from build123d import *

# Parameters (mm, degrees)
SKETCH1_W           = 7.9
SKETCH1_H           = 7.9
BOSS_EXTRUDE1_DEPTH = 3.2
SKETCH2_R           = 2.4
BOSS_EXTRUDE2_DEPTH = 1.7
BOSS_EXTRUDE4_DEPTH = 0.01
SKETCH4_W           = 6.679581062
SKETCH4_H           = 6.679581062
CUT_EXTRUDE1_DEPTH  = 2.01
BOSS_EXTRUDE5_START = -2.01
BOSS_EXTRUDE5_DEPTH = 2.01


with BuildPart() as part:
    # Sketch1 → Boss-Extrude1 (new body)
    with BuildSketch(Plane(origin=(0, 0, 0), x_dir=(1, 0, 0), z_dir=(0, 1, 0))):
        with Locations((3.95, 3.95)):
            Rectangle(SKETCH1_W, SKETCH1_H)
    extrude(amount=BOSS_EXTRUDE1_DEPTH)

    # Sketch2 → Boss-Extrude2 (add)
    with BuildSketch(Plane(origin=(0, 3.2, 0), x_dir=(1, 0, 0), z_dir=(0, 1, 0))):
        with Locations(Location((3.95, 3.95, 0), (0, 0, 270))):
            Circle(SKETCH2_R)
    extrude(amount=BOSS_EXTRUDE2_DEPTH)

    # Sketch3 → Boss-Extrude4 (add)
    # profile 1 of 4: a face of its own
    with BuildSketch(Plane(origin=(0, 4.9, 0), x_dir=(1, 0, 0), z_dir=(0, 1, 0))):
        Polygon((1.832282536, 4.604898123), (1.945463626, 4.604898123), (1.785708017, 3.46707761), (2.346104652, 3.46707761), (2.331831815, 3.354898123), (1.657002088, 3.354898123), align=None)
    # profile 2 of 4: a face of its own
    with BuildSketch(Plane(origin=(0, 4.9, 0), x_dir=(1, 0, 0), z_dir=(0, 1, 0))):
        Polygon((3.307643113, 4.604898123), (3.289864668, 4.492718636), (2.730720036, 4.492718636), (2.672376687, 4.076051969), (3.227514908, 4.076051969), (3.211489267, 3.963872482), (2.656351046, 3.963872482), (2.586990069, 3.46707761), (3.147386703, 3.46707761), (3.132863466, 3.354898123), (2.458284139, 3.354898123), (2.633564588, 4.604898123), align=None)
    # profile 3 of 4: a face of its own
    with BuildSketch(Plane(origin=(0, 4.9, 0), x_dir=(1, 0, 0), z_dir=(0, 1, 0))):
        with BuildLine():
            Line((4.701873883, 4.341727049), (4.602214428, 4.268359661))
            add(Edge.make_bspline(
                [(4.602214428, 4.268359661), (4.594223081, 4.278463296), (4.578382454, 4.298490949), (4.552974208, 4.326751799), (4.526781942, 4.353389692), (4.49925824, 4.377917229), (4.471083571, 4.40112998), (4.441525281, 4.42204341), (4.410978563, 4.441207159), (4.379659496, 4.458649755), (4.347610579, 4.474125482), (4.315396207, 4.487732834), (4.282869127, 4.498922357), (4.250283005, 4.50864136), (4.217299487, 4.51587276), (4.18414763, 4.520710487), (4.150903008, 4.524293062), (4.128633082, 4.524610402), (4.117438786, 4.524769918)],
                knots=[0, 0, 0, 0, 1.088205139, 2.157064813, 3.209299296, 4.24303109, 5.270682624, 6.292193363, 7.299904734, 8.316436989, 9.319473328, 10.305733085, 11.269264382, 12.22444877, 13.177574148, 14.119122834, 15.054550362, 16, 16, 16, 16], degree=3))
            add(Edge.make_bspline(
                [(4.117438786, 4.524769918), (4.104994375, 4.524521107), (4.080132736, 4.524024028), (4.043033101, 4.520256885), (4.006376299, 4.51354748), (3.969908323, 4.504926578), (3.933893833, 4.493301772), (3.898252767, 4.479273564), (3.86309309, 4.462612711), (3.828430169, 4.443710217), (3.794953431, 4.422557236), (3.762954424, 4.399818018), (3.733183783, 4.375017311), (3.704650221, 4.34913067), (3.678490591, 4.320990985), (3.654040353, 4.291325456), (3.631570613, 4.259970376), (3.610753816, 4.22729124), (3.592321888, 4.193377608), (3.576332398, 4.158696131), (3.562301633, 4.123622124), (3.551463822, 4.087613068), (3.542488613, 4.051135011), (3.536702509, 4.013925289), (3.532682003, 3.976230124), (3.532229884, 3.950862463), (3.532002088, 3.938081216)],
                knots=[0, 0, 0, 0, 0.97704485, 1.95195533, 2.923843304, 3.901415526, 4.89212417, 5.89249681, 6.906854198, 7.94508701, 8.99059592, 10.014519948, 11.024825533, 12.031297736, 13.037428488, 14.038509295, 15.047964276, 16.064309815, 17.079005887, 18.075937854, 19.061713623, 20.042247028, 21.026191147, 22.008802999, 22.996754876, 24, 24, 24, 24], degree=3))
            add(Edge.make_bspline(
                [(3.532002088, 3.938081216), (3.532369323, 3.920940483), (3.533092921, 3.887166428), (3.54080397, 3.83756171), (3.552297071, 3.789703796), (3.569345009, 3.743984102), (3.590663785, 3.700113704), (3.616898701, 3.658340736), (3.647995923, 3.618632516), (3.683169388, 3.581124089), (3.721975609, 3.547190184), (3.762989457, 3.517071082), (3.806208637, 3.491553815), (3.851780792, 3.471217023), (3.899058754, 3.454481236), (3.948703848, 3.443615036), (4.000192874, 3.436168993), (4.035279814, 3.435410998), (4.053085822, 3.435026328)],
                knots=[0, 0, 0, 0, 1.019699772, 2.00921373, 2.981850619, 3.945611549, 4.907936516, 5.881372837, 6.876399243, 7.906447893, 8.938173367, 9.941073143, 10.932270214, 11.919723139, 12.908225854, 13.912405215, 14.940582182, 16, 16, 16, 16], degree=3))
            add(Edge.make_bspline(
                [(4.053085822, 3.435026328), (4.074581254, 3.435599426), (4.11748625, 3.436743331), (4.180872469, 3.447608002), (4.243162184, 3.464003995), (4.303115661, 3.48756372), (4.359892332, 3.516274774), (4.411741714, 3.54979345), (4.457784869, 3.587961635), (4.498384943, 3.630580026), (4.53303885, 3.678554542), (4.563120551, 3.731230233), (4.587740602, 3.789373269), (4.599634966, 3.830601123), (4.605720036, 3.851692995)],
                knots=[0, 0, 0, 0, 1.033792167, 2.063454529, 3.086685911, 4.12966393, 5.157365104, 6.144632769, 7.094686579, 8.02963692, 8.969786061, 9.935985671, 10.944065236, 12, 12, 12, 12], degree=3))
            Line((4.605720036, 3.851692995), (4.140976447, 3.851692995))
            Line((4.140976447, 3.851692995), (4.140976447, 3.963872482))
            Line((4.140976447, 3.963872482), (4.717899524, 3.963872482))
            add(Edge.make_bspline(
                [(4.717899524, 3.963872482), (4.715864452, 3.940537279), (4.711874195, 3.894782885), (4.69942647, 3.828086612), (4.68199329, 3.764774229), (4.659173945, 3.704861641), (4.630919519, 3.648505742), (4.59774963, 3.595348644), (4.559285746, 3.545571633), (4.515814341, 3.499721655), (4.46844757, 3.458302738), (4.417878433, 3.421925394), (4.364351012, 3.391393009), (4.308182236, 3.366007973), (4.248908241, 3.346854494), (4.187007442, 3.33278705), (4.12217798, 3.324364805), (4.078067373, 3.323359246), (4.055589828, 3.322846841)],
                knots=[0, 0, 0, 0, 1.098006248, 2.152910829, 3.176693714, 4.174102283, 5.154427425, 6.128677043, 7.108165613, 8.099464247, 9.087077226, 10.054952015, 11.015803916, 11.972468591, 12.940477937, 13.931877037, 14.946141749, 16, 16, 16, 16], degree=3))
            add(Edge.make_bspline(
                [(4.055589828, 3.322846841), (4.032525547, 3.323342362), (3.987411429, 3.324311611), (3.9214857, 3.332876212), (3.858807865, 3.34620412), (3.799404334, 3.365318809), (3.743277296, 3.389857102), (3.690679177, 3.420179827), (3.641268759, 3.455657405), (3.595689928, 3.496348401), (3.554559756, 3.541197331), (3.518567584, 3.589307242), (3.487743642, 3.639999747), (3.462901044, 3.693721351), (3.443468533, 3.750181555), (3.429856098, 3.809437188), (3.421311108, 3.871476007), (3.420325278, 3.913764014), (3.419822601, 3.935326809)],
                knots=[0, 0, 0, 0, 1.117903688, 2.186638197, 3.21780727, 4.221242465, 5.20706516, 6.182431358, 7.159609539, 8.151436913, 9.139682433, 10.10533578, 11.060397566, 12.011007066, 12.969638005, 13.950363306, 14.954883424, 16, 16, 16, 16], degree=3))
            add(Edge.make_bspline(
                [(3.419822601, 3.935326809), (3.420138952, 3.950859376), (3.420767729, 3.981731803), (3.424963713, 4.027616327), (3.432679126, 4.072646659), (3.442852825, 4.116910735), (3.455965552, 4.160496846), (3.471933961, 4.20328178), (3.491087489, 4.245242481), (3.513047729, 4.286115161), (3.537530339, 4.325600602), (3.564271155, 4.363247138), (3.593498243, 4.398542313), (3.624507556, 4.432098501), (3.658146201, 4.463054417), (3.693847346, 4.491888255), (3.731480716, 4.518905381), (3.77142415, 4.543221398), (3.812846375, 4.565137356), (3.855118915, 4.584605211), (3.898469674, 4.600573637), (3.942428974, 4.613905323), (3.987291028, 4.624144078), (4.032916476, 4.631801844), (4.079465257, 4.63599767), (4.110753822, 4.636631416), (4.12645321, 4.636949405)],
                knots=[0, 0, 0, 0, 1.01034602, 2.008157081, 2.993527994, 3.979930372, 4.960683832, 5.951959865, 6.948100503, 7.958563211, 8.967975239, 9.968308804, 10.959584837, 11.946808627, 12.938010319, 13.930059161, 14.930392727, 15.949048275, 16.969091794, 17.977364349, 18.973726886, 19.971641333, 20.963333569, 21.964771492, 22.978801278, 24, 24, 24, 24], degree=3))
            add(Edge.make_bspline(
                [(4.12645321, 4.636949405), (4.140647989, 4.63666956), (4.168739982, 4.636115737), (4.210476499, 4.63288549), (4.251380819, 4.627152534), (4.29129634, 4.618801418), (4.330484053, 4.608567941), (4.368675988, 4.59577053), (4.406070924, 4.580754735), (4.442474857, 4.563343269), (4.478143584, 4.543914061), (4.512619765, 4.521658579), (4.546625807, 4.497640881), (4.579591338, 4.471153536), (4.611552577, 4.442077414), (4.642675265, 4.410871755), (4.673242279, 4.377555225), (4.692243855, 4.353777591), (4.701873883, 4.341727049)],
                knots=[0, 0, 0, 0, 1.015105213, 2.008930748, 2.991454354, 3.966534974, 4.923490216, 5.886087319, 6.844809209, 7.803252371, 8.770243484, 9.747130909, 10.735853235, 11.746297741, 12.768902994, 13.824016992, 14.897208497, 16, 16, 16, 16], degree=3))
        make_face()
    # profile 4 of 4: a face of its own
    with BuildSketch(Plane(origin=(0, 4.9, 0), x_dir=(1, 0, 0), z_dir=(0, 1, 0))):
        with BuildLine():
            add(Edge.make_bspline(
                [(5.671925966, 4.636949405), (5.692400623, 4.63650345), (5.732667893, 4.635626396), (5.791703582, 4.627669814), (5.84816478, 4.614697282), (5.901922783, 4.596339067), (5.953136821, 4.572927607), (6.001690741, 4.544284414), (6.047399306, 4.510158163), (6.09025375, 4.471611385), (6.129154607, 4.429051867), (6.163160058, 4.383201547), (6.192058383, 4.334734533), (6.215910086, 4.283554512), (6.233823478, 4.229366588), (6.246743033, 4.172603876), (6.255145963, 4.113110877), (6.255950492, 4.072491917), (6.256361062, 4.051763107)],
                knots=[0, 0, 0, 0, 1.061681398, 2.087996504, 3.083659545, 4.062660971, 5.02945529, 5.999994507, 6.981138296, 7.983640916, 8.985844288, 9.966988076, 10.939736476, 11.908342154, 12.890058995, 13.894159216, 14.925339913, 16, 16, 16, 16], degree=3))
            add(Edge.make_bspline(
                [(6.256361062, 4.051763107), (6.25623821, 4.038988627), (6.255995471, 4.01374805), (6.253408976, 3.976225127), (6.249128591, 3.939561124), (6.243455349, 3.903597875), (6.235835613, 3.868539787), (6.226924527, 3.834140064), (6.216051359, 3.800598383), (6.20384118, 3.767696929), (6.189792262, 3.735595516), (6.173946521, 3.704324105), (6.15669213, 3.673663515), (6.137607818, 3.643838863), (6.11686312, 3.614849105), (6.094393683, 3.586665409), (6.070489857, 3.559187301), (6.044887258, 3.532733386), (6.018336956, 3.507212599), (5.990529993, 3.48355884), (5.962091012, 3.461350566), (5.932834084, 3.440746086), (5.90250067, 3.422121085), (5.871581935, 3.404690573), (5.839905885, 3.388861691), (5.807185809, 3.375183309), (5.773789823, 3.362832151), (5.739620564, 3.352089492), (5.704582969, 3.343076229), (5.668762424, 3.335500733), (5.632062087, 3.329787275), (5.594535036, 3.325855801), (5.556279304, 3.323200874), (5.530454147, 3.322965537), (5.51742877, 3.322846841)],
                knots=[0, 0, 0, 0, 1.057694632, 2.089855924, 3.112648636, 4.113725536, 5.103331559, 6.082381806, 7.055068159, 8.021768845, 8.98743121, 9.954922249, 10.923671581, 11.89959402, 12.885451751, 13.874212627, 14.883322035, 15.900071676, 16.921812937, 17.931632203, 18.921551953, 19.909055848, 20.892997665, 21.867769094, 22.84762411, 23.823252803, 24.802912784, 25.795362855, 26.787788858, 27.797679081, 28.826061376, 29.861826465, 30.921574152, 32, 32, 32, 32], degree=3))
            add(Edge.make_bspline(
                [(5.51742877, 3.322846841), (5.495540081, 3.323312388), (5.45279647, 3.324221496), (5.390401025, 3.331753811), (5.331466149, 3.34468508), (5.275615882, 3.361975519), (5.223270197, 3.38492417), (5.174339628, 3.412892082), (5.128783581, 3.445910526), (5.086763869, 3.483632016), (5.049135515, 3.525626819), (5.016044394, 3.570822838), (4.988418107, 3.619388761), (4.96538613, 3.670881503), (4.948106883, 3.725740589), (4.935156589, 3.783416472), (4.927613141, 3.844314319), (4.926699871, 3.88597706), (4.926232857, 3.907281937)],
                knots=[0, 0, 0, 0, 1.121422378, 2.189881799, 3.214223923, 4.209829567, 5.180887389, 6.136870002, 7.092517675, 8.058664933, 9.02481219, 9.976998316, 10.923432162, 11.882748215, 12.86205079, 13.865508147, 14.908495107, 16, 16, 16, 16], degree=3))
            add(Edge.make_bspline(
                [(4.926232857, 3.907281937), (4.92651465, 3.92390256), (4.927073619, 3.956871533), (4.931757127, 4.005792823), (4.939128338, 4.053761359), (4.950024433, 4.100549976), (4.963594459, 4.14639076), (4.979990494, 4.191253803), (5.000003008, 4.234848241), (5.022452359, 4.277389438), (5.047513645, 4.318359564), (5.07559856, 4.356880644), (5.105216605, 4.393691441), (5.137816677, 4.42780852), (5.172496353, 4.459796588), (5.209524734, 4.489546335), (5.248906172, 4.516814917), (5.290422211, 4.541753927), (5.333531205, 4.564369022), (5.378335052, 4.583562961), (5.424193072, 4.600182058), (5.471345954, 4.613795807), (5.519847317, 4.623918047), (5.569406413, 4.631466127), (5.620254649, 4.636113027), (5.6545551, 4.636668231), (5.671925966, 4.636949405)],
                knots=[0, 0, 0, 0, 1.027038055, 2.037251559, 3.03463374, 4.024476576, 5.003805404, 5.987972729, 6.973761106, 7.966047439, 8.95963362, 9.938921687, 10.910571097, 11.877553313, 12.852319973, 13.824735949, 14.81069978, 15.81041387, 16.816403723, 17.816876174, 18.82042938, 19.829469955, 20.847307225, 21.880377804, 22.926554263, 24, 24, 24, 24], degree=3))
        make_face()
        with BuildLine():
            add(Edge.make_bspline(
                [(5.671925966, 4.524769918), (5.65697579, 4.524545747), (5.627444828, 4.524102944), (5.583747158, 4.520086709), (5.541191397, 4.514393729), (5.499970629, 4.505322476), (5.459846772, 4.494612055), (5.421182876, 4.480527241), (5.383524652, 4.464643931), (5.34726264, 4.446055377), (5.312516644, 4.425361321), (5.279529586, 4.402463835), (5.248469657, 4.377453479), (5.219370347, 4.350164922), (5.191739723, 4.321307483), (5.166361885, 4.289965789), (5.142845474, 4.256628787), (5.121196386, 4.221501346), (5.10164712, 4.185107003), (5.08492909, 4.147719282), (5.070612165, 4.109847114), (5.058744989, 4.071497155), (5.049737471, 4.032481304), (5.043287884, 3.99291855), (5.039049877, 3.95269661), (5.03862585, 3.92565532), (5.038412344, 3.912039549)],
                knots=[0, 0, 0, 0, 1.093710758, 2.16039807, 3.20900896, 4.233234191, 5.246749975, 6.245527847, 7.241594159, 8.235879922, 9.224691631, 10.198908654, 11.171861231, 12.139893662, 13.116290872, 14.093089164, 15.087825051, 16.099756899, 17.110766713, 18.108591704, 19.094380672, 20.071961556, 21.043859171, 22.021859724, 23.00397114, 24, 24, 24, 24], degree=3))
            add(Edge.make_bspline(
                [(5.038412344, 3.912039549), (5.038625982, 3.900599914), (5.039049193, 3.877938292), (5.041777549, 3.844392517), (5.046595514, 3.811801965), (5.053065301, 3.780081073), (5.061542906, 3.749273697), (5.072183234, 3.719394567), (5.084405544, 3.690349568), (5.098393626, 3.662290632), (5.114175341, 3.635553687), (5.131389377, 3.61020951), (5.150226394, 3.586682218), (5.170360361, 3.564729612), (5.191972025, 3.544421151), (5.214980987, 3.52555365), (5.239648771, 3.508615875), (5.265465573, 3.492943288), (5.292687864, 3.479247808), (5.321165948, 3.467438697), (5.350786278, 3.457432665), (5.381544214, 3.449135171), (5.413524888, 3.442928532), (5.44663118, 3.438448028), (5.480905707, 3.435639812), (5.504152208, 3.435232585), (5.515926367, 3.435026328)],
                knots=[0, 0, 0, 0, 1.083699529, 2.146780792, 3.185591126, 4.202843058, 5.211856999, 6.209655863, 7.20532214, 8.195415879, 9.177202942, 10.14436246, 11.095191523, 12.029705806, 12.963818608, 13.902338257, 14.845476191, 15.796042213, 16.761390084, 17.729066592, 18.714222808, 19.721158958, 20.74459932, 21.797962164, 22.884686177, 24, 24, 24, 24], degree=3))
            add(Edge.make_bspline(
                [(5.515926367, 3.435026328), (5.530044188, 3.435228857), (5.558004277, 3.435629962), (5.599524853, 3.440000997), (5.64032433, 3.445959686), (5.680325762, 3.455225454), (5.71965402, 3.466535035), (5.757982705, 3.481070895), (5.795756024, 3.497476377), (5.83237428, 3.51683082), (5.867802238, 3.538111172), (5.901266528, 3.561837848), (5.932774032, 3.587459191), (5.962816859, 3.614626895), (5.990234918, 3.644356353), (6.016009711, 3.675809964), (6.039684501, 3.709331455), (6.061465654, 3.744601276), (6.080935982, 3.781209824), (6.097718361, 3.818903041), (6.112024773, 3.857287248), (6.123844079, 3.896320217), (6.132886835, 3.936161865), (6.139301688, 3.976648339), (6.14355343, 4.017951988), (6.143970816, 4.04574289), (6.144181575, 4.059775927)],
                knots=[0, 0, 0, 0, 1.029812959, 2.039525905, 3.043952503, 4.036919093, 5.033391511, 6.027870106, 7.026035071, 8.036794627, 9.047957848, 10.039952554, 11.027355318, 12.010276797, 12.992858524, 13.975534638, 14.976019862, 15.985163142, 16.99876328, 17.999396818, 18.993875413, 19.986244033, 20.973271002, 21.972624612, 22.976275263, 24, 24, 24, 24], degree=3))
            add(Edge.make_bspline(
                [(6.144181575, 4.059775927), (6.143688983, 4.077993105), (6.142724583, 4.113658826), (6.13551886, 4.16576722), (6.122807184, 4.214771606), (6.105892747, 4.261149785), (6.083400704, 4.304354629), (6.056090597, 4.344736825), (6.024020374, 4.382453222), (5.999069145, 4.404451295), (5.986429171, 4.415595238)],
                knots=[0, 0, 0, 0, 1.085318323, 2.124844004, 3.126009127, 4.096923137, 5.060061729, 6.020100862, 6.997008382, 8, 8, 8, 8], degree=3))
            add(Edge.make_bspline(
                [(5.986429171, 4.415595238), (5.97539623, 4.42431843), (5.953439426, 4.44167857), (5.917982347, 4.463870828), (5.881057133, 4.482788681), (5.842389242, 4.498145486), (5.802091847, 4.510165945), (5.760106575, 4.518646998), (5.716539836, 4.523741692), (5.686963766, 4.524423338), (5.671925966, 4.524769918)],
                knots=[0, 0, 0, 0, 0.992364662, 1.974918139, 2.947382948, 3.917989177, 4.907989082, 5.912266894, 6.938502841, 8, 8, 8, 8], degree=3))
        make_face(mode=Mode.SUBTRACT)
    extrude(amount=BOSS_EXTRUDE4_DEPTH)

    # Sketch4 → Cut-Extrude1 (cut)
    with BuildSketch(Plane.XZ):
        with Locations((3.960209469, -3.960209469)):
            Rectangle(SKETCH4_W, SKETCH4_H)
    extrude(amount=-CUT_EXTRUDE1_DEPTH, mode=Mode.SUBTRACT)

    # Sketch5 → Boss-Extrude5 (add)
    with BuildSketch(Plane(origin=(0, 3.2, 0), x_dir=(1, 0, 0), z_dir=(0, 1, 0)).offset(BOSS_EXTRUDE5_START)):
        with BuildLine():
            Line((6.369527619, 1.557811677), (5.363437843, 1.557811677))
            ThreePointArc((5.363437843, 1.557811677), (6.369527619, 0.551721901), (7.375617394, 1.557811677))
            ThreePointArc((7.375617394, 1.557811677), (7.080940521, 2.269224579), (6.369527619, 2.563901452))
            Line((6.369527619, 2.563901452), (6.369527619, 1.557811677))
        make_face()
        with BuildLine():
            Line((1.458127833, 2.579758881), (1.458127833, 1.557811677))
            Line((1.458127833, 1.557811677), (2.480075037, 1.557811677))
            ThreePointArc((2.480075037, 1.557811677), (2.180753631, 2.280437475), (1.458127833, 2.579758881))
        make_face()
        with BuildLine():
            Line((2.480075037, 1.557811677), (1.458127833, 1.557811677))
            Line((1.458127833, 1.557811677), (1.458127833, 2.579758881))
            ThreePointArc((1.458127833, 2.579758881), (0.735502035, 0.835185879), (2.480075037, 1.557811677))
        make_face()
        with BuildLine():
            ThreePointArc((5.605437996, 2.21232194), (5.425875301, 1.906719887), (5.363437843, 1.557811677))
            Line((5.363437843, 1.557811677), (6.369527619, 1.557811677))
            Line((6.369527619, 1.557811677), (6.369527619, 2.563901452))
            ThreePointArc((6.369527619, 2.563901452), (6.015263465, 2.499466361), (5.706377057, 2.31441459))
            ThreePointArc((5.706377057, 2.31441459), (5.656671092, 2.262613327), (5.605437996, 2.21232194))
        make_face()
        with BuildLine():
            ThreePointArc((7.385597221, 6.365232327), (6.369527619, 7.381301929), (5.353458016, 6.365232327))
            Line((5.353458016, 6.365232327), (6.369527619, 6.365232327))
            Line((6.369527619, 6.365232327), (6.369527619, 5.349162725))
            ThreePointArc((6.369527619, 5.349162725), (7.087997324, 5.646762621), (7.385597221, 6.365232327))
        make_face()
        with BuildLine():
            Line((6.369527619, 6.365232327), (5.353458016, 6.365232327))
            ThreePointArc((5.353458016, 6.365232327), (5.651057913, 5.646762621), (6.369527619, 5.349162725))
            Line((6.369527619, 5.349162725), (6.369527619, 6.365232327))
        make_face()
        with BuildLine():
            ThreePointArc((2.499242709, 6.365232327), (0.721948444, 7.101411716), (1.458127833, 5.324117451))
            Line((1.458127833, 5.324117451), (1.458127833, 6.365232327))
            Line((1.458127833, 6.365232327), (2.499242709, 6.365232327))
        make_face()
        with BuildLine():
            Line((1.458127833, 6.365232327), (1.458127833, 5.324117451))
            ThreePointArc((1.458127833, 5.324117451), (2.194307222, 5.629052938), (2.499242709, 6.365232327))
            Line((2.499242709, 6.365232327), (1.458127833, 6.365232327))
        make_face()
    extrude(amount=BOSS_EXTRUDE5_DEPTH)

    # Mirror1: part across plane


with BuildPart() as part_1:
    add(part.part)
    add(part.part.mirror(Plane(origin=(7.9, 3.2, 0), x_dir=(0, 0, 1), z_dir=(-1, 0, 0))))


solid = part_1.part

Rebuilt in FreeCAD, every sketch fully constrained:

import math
import FreeCAD as App
import Part
import Sketcher
from FreeCAD import Vector


def add_polygon(sketch, points):
    """Adds a closed chain of lines whose ends are joined by coincident constraints."""
    first, n = sketch.GeometryCount, len(points)
    for a, b in zip(points, points[1:] + points[:1]):
        sketch.addGeometry(Part.LineSegment(App.Vector(*a, 0), App.Vector(*b, 0)), False)
    for i in range(n):
        sketch.addConstraint(Sketcher.Constraint("Coincident", first + i, 2, first + (i + 1) % n, 1))

doc = App.newDocument("Part")
params = doc.addObject("Spreadsheet::Sheet", "Params")
for row, (alias, value) in enumerate([
    ("sketch1_width", "7.9 mm"),
    ("pad1_length", "3.2 mm"),
    ("sketch2_diameter", "4.8 mm"),
    ("pad2_length", "1.7 mm"),
    ("pad3_length", "0.01 mm"),
    ("pocket1_length", "2.01 mm"),
    ("sketch5_radius", "2.399999 mm"),
    ("pad4_length", "2.01 mm"),
], start=1):
    params.set(f"A{row}", alias)
    params.set(f"B{row}", "=" + value)
    params.setAlias(f"B{row}", alias)

body = doc.addObject("PartDesign::Body", "Body")

sketch1 = doc.addObject("Sketcher::SketchObject", "Sketch")
body.addObject(sketch1)
sketch1.AttachmentSupport = (doc.XZ_Plane, [""])
sketch1.MapMode = "FlatFace"
add_polygon(sketch1, [(0, -7.9), (0, 0), (7.9, 0), (7.9, -7.9)])
sketch1.addConstraint([
    Sketcher.Constraint("Vertical", 0),
    Sketcher.Constraint("Horizontal", 1),
    Sketcher.Constraint("Vertical", 2),
    Sketcher.Constraint("Horizontal", 3),
    Sketcher.Constraint("Coincident", 0, 2, -1, 1),
    Sketcher.Constraint("Equal", 3, 0),
    Sketcher.Constraint("DistanceX", 1, 1, 1, 2, 7.9),
])
sketch1.setExpression("Constraints[10]", "Params.sketch1_width")
pad1 = doc.addObject("PartDesign::Pad", "Pad")
body.addObject(pad1)
pad1.Profile = sketch1
pad1.setExpression("Length", "Params.pad1_length")
pad1.Reversed = True

sketch2 = doc.addObject("Sketcher::SketchObject", "Sketch001")
body.addObject(sketch2)
sketch2.AttachmentSupport = (doc.XZ_Plane, [""])
sketch2.MapMode = "FlatFace"
sketch2.AttachmentOffset = App.Placement(Vector(0, 0, -3.2), App.Rotation())
sketch2.addGeometry(Part.Circle(Vector(3.95, -3.95, 0), Vector(0, 0, 1), 2.4), False)
sketch2.addConstraint([
    Sketcher.Constraint("Diameter", 0, 4.8),
    Sketcher.Constraint("DistanceX", -1, 1, 0, 3, 3.95),
    Sketcher.Constraint("DistanceY", 0, 3, -1, 1, 3.95),
])
sketch2.setExpression("Constraints[0]", "Params.sketch2_diameter")
pad2 = doc.addObject("PartDesign::Pad", "Pad001")
body.addObject(pad2)
pad2.Profile = sketch2
pad2.setExpression("Length", "Params.pad2_length")
pad2.Reversed = True

sketch3 = doc.addObject("Sketcher::SketchObject", "Sketch002")
body.addObject(sketch3)
sketch3.AttachmentSupport = (doc.XZ_Plane, [""])
sketch3.MapMode = "FlatFace"
sketch3.AttachmentOffset = App.Placement(Vector(0, 0, -4.9), App.Rotation())
add_polygon(sketch3, [(1.945464, -4.604898), (1.832283, -4.604898), (1.657002, -3.354898), (2.331832, -3.354898), (2.346105, -3.467078), (1.785708, -3.467078)])
add_polygon(sketch3, [(3.289865, -4.492719), (3.307643, -4.604898), (2.633565, -4.604898), (2.458284, -3.354898), (3.132863, -3.354898), (3.147387, -3.467078), (2.58699, -3.467078), (2.656351, -3.963872), (3.211489, -3.963872), (3.227515, -4.076052), (2.672377, -4.076052), (2.73072, -4.492719)])
sketch3.addGeometry(Part.LineSegment(Vector(4.602214, -4.26836, 0), Vector(4.701874, -4.341727, 0)), False)
sketch3.addGeometry(Part.BSplineCurve([Vector(4.126453, -4.636949, 0), Vector(4.140648, -4.63667, 0), Vector(4.16874, -4.636116, 0), Vector(4.210476, -4.632885, 0), Vector(4.251381, -4.627153, 0), Vector(4.291296, -4.618801, 0), Vector(4.330484, -4.608568, 0), Vector(4.368676, -4.595771, 0), Vector(4.406071, -4.580755, 0), Vector(4.442475, -4.563343, 0), Vector(4.478144, -4.543914, 0), Vector(4.51262, -4.521659, 0), Vector(4.546626, -4.497641, 0), Vector(4.579591, -4.471154, 0), Vector(4.611553, -4.442077, 0), Vector(4.642675, -4.410872, 0), Vector(4.673242, -4.377555, 0), Vector(4.692244, -4.353778, 0), Vector(4.701874, -4.341727, 0)], [4, 1, 1, 1, 1, 1, 1, 1, 1, 1, 1, 1, 1, 1, 1, 1, 4], [0, 1.015105213, 2.008930748, 2.991454354, 3.966534974, 4.923490216, 5.886087319, 6.844809209, 7.803252371, 8.770243484, 9.747130909, 10.735853235, 11.746297741, 12.768902994, 13.824016992, 14.897208497, 16], False, 3, [1, 1, 1, 1, 1, 1, 1, 1, 1, 1, 1, 1, 1, 1, 1, 1, 1, 1, 1], False), False)
sketch3.addGeometry(Part.BSplineCurve([Vector(3.419823, -3.935327, 0), Vector(3.420139, -3.950859, 0), Vector(3.420768, -3.981732, 0), Vector(3.424964, -4.027616, 0), Vector(3.432679, -4.072647, 0), Vector(3.442853, -4.116911, 0), Vector(3.455966, -4.160497, 0), Vector(3.471934, -4.203282, 0), Vector(3.491087, -4.245242, 0), Vector(3.513048, -4.286115, 0), Vector(3.53753, -4.325601, 0), Vector(3.564271, -4.363247, 0), Vector(3.593498, -4.398542, 0), Vector(3.624508, -4.432099, 0), Vector(3.658146, -4.463054, 0), Vector(3.693847, -4.491888, 0), Vector(3.731481, -4.518905, 0), Vector(3.771424, -4.543221, 0), Vector(3.812846, -4.565137, 0), Vector(3.855119, -4.584605, 0), Vector(3.89847, -4.600574, 0), Vector(3.942429, -4.613905, 0), Vector(3.987291, -4.624144, 0), Vector(4.032916, -4.631802, 0), Vector(4.079465, -4.635998, 0), Vector(4.110754, -4.636631, 0), Vector(4.126453, -4.636949, 0)], [4, 1, 1, 1, 1, 1, 1, 1, 1, 1, 1, 1, 1, 1, 1, 1, 1, 1, 1, 1, 1, 1, 1, 1, 4], [0, 1.01034602, 2.008157081, 2.993527994, 3.979930372, 4.960683832, 5.951959865, 6.948100503, 7.958563211, 8.967975239, 9.968308804, 10.959584837, 11.946808627, 12.938010319, 13.930059161, 14.930392727, 15.949048275, 16.969091794, 17.977364349, 18.973726886, 19.971641333, 20.963333569, 21.964771492, 22.978801278, 24], False, 3, [1, 1, 1, 1, 1, 1, 1, 1, 1, 1, 1, 1, 1, 1, 1, 1, 1, 1, 1, 1, 1, 1, 1, 1, 1, 1, 1], False), False)
sketch3.addGeometry(Part.BSplineCurve([Vector(4.05559, -3.322847, 0), Vector(4.032526, -3.323342, 0), Vector(3.987411, -3.324312, 0), Vector(3.921486, -3.332876, 0), Vector(3.858808, -3.346204, 0), Vector(3.799404, -3.365319, 0), Vector(3.743277, -3.389857, 0), Vector(3.690679, -3.42018, 0), Vector(3.641269, -3.455657, 0), Vector(3.59569, -3.496348, 0), Vector(3.55456, -3.541197, 0), Vector(3.518568, -3.589307, 0), Vector(3.487744, -3.64, 0), Vector(3.462901, -3.693721, 0), Vector(3.443469, -3.750182, 0), Vector(3.429856, -3.809437, 0), Vector(3.421311, -3.871476, 0), Vector(3.420325, -3.913764, 0), Vector(3.419823, -3.935327, 0)], [4, 1, 1, 1, 1, 1, 1, 1, 1, 1, 1, 1, 1, 1, 1, 1, 4], [0, 1.117903688, 2.186638197, 3.21780727, 4.221242465, 5.20706516, 6.182431358, 7.159609539, 8.151436913, 9.139682433, 10.10533578, 11.060397566, 12.011007066, 12.969638005, 13.950363306, 14.954883424, 16], False, 3, [1, 1, 1, 1, 1, 1, 1, 1, 1, 1, 1, 1, 1, 1, 1, 1, 1, 1, 1], False), False)
sketch3.addGeometry(Part.BSplineCurve([Vector(4.7179, -3.963872, 0), Vector(4.715864, -3.940537, 0), Vector(4.711874, -3.894783, 0), Vector(4.699426, -3.828087, 0), Vector(4.681993, -3.764774, 0), Vector(4.659174, -3.704862, 0), Vector(4.63092, -3.648506, 0), Vector(4.59775, -3.595349, 0), Vector(4.559286, -3.545572, 0), Vector(4.515814, -3.499722, 0), Vector(4.468448, -3.458303, 0), Vector(4.417878, -3.421925, 0), Vector(4.364351, -3.391393, 0), Vector(4.308182, -3.366008, 0), Vector(4.248908, -3.346854, 0), Vector(4.187007, -3.332787, 0), Vector(4.122178, -3.324365, 0), Vector(4.078067, -3.323359, 0), Vector(4.05559, -3.322847, 0)], [4, 1, 1, 1, 1, 1, 1, 1, 1, 1, 1, 1, 1, 1, 1, 1, 4], [0, 1.098006248, 2.152910829, 3.176693714, 4.174102283, 5.154427425, 6.128677043, 7.108165613, 8.099464247, 9.087077226, 10.054952015, 11.015803916, 11.972468591, 12.940477937, 13.931877037, 14.946141749, 16], False, 3, [1, 1, 1, 1, 1, 1, 1, 1, 1, 1, 1, 1, 1, 1, 1, 1, 1, 1, 1], False), False)
sketch3.addGeometry(Part.LineSegment(Vector(4.7179, -3.963872, 0), Vector(4.140976, -3.963872, 0)), False)
sketch3.addGeometry(Part.LineSegment(Vector(4.140976, -3.963872, 0), Vector(4.140976, -3.851693, 0)), False)
sketch3.addGeometry(Part.LineSegment(Vector(4.140976, -3.851693, 0), Vector(4.60572, -3.851693, 0)), False)
sketch3.addGeometry(Part.BSplineCurve([Vector(4.053086, -3.435026, 0), Vector(4.074581, -3.435599, 0), Vector(4.117486, -3.436743, 0), Vector(4.180872, -3.447608, 0), Vector(4.243162, -3.464004, 0), Vector(4.303116, -3.487564, 0), Vector(4.359892, -3.516275, 0), Vector(4.411742, -3.549793, 0), Vector(4.457785, -3.587962, 0), Vector(4.498385, -3.63058, 0), Vector(4.533039, -3.678555, 0), Vector(4.563121, -3.73123, 0), Vector(4.587741, -3.789373, 0), Vector(4.599635, -3.830601, 0), Vector(4.60572, -3.851693, 0)], [4, 1, 1, 1, 1, 1, 1, 1, 1, 1, 1, 1, 4], [0, 1.033792167, 2.063454529, 3.086685911, 4.12966393, 5.157365104, 6.144632769, 7.094686579, 8.02963692, 8.969786061, 9.935985671, 10.944065236, 12], False, 3, [1, 1, 1, 1, 1, 1, 1, 1, 1, 1, 1, 1, 1, 1, 1], False), False)
sketch3.addGeometry(Part.BSplineCurve([Vector(3.532002, -3.938081, 0), Vector(3.532369, -3.92094, 0), Vector(3.533093, -3.887166, 0), Vector(3.540804, -3.837562, 0), Vector(3.552297, -3.789704, 0), Vector(3.569345, -3.743984, 0), Vector(3.590664, -3.700114, 0), Vector(3.616899, -3.658341, 0), Vector(3.647996, -3.618633, 0), Vector(3.683169, -3.581124, 0), Vector(3.721976, -3.54719, 0), Vector(3.762989, -3.517071, 0), Vector(3.806209, -3.491554, 0), Vector(3.851781, -3.471217, 0), Vector(3.899059, -3.454481, 0), Vector(3.948704, -3.443615, 0), Vector(4.000193, -3.436169, 0), Vector(4.03528, -3.435411, 0), Vector(4.053086, -3.435026, 0)], [4, 1, 1, 1, 1, 1, 1, 1, 1, 1, 1, 1, 1, 1, 1, 1, 4], [0, 1.019699772, 2.00921373, 2.981850619, 3.945611549, 4.907936516, 5.881372837, 6.876399243, 7.906447893, 8.938173367, 9.941073143, 10.932270214, 11.919723139, 12.908225854, 13.912405215, 14.940582182, 16], False, 3, [1, 1, 1, 1, 1, 1, 1, 1, 1, 1, 1, 1, 1, 1, 1, 1, 1, 1, 1], False), False)
sketch3.addGeometry(Part.BSplineCurve([Vector(4.117439, -4.52477, 0), Vector(4.104994, -4.524521, 0), Vector(4.080133, -4.524024, 0), Vector(4.043033, -4.520257, 0), Vector(4.006376, -4.513547, 0), Vector(3.969908, -4.504927, 0), Vector(3.933894, -4.493302, 0), Vector(3.898253, -4.479274, 0), Vector(3.863093, -4.462613, 0), Vector(3.82843, -4.44371, 0), Vector(3.794953, -4.422557, 0), Vector(3.762954, -4.399818, 0), Vector(3.733184, -4.375017, 0), Vector(3.70465, -4.349131, 0), Vector(3.678491, -4.320991, 0), Vector(3.65404, -4.291325, 0), Vector(3.631571, -4.25997, 0), Vector(3.610754, -4.227291, 0), Vector(3.592322, -4.193378, 0), Vector(3.576332, -4.158696, 0), Vector(3.562302, -4.123622, 0), Vector(3.551464, -4.087613, 0), Vector(3.542489, -4.051135, 0), Vector(3.536703, -4.013925, 0), Vector(3.532682, -3.97623, 0), Vector(3.53223, -3.950862, 0), Vector(3.532002, -3.938081, 0)], [4, 1, 1, 1, 1, 1, 1, 1, 1, 1, 1, 1, 1, 1, 1, 1, 1, 1, 1, 1, 1, 1, 1, 1, 4], [0, 0.97704485, 1.95195533, 2.923843304, 3.901415526, 4.89212417, 5.89249681, 6.906854198, 7.94508701, 8.99059592, 10.014519948, 11.024825533, 12.031297736, 13.037428488, 14.038509295, 15.047964276, 16.064309815, 17.079005887, 18.075937854, 19.061713623, 20.042247028, 21.026191147, 22.008802999, 22.996754876, 24], False, 3, [1, 1, 1, 1, 1, 1, 1, 1, 1, 1, 1, 1, 1, 1, 1, 1, 1, 1, 1, 1, 1, 1, 1, 1, 1, 1, 1], False), False)
sketch3.addGeometry(Part.BSplineCurve([Vector(4.602214, -4.26836, 0), Vector(4.594223, -4.278463, 0), Vector(4.578382, -4.298491, 0), Vector(4.552974, -4.326752, 0), Vector(4.526782, -4.35339, 0), Vector(4.499258, -4.377917, 0), Vector(4.471084, -4.40113, 0), Vector(4.441525, -4.422043, 0), Vector(4.410979, -4.441207, 0), Vector(4.379659, -4.45865, 0), Vector(4.347611, -4.474125, 0), Vector(4.315396, -4.487733, 0), Vector(4.282869, -4.498922, 0), Vector(4.250283, -4.508641, 0), Vector(4.217299, -4.515873, 0), Vector(4.184148, -4.52071, 0), Vector(4.150903, -4.524293, 0), Vector(4.128633, -4.52461, 0), Vector(4.117439, -4.52477, 0)], [4, 1, 1, 1, 1, 1, 1, 1, 1, 1, 1, 1, 1, 1, 1, 1, 4], [0, 1.088205139, 2.157064813, 3.209299296, 4.24303109, 5.270682624, 6.292193363, 7.299904734, 8.316436989, 9.319473328, 10.305733085, 11.269264382, 12.22444877, 13.177574148, 14.119122834, 15.054550362, 16], False, 3, [1, 1, 1, 1, 1, 1, 1, 1, 1, 1, 1, 1, 1, 1, 1, 1, 1, 1, 1], False), False)
sketch3.addGeometry(Part.BSplineCurve([Vector(5.671926, -4.636949, 0), Vector(5.692401, -4.636503, 0), Vector(5.732668, -4.635626, 0), Vector(5.791704, -4.62767, 0), Vector(5.848165, -4.614697, 0), Vector(5.901923, -4.596339, 0), Vector(5.953137, -4.572928, 0), Vector(6.001691, -4.544284, 0), Vector(6.047399, -4.510158, 0), Vector(6.090254, -4.471611, 0), Vector(6.129155, -4.429052, 0), Vector(6.16316, -4.383202, 0), Vector(6.192058, -4.334735, 0), Vector(6.21591, -4.283555, 0), Vector(6.233823, -4.229367, 0), Vector(6.246743, -4.172604, 0), Vector(6.255146, -4.113111, 0), Vector(6.25595, -4.072492, 0), Vector(6.256361, -4.051763, 0)], [4, 1, 1, 1, 1, 1, 1, 1, 1, 1, 1, 1, 1, 1, 1, 1, 4], [0, 1.061681398, 2.087996504, 3.083659545, 4.062660971, 5.02945529, 5.999994507, 6.981138296, 7.983640916, 8.985844288, 9.966988076, 10.939736476, 11.908342154, 12.890058995, 13.894159216, 14.925339913, 16], False, 3, [1, 1, 1, 1, 1, 1, 1, 1, 1, 1, 1, 1, 1, 1, 1, 1, 1, 1, 1], False), False)
sketch3.addGeometry(Part.BSplineCurve([Vector(4.926233, -3.907282, 0), Vector(4.926515, -3.923903, 0), Vector(4.927074, -3.956872, 0), Vector(4.931757, -4.005793, 0), Vector(4.939128, -4.053761, 0), Vector(4.950024, -4.10055, 0), Vector(4.963594, -4.146391, 0), Vector(4.97999, -4.191254, 0), Vector(5.000003, -4.234848, 0), Vector(5.022452, -4.277389, 0), Vector(5.047514, -4.31836, 0), Vector(5.075599, -4.356881, 0), Vector(5.105217, -4.393691, 0), Vector(5.137817, -4.427809, 0), Vector(5.172496, -4.459797, 0), Vector(5.209525, -4.489546, 0), Vector(5.248906, -4.516815, 0), Vector(5.290422, -4.541754, 0), Vector(5.333531, -4.564369, 0), Vector(5.378335, -4.583563, 0), Vector(5.424193, -4.600182, 0), Vector(5.471346, -4.613796, 0), Vector(5.519847, -4.623918, 0), Vector(5.569406, -4.631466, 0), Vector(5.620255, -4.636113, 0), Vector(5.654555, -4.636668, 0), Vector(5.671926, -4.636949, 0)], [4, 1, 1, 1, 1, 1, 1, 1, 1, 1, 1, 1, 1, 1, 1, 1, 1, 1, 1, 1, 1, 1, 1, 1, 4], [0, 1.027038055, 2.037251559, 3.03463374, 4.024476576, 5.003805404, 5.987972729, 6.973761106, 7.966047439, 8.95963362, 9.938921687, 10.910571097, 11.877553313, 12.852319973, 13.824735949, 14.81069978, 15.81041387, 16.816403723, 17.816876174, 18.82042938, 19.829469955, 20.847307225, 21.880377804, 22.926554263, 24], False, 3, [1, 1, 1, 1, 1, 1, 1, 1, 1, 1, 1, 1, 1, 1, 1, 1, 1, 1, 1, 1, 1, 1, 1, 1, 1, 1, 1], False), False)
sketch3.addGeometry(Part.BSplineCurve([Vector(5.517429, -3.322847, 0), Vector(5.49554, -3.323312, 0), Vector(5.452796, -3.324221, 0), Vector(5.390401, -3.331754, 0), Vector(5.331466, -3.344685, 0), Vector(5.275616, -3.361976, 0), Vector(5.22327, -3.384924, 0), Vector(5.17434, -3.412892, 0), Vector(5.128784, -3.445911, 0), Vector(5.086764, -3.483632, 0), Vector(5.049136, -3.525627, 0), Vector(5.016044, -3.570823, 0), Vector(4.988418, -3.619389, 0), Vector(4.965386, -3.670882, 0), Vector(4.948107, -3.725741, 0), Vector(4.935157, -3.783416, 0), Vector(4.927613, -3.844314, 0), Vector(4.9267, -3.885977, 0), Vector(4.926233, -3.907282, 0)], [4, 1, 1, 1, 1, 1, 1, 1, 1, 1, 1, 1, 1, 1, 1, 1, 4], [0, 1.121422378, 2.189881799, 3.214223923, 4.209829567, 5.180887389, 6.136870002, 7.092517675, 8.058664933, 9.02481219, 9.976998316, 10.923432162, 11.882748215, 12.86205079, 13.865508147, 14.908495107, 16], False, 3, [1, 1, 1, 1, 1, 1, 1, 1, 1, 1, 1, 1, 1, 1, 1, 1, 1, 1, 1], False), False)
sketch3.addGeometry(Part.BSplineCurve([Vector(6.256361, -4.051763, 0), Vector(6.256238, -4.038989, 0), Vector(6.255995, -4.013748, 0), Vector(6.253409, -3.976225, 0), Vector(6.249129, -3.939561, 0), Vector(6.243455, -3.903598, 0), Vector(6.235836, -3.86854, 0), Vector(6.226925, -3.83414, 0), Vector(6.216051, -3.800598, 0), Vector(6.203841, -3.767697, 0), Vector(6.189792, -3.735596, 0), Vector(6.173947, -3.704324, 0), Vector(6.156692, -3.673664, 0), Vector(6.137608, -3.643839, 0), Vector(6.116863, -3.614849, 0), Vector(6.094394, -3.586665, 0), Vector(6.07049, -3.559187, 0), Vector(6.044887, -3.532733, 0), Vector(6.018337, -3.507213, 0), Vector(5.99053, -3.483559, 0), Vector(5.962091, -3.461351, 0), Vector(5.932834, -3.440746, 0), Vector(5.902501, -3.422121, 0), Vector(5.871582, -3.404691, 0), Vector(5.839906, -3.388862, 0), Vector(5.807186, -3.375183, 0), Vector(5.77379, -3.362832, 0), Vector(5.739621, -3.352089, 0), Vector(5.704583, -3.343076, 0), Vector(5.668762, -3.335501, 0), Vector(5.632062, -3.329787, 0), Vector(5.594535, -3.325856, 0), Vector(5.556279, -3.323201, 0), Vector(5.530454, -3.322966, 0), Vector(5.517429, -3.322847, 0)], [4, 1, 1, 1, 1, 1, 1, 1, 1, 1, 1, 1, 1, 1, 1, 1, 1, 1, 1, 1, 1, 1, 1, 1, 1, 1, 1, 1, 1, 1, 1, 1, 4], [0, 1.057694632, 2.089855924, 3.112648636, 4.113725536, 5.103331559, 6.082381806, 7.055068159, 8.021768845, 8.98743121, 9.954922249, 10.923671581, 11.89959402, 12.885451751, 13.874212627, 14.883322035, 15.900071676, 16.921812937, 17.931632203, 18.921551953, 19.909055848, 20.892997665, 21.867769094, 22.84762411, 23.823252803, 24.802912784, 25.795362855, 26.787788858, 27.797679081, 28.826061376, 29.861826465, 30.921574152, 32], False, 3, [1, 1, 1, 1, 1, 1, 1, 1, 1, 1, 1, 1, 1, 1, 1, 1, 1, 1, 1, 1, 1, 1, 1, 1, 1, 1, 1, 1, 1, 1, 1, 1, 1, 1, 1], False), False)
sketch3.addGeometry(Part.BSplineCurve([Vector(5.986429, -4.415595, 0), Vector(5.975396, -4.424318, 0), Vector(5.953439, -4.441679, 0), Vector(5.917982, -4.463871, 0), Vector(5.881057, -4.482789, 0), Vector(5.842389, -4.498145, 0), Vector(5.802092, -4.510166, 0), Vector(5.760107, -4.518647, 0), Vector(5.71654, -4.523742, 0), Vector(5.686964, -4.524423, 0), Vector(5.671926, -4.52477, 0)], [4, 1, 1, 1, 1, 1, 1, 1, 4], [0, 0.992364662, 1.974918139, 2.947382948, 3.917989177, 4.907989082, 5.912266894, 6.938502841, 8], False, 3, [1, 1, 1, 1, 1, 1, 1, 1, 1, 1, 1], False), False)
sketch3.addGeometry(Part.BSplineCurve([Vector(6.144182, -4.059776, 0), Vector(6.143689, -4.077993, 0), Vector(6.142725, -4.113659, 0), Vector(6.135519, -4.165767, 0), Vector(6.122807, -4.214772, 0), Vector(6.105893, -4.26115, 0), Vector(6.083401, -4.304355, 0), Vector(6.056091, -4.344737, 0), Vector(6.02402, -4.382453, 0), Vector(5.999069, -4.404451, 0), Vector(5.986429, -4.415595, 0)], [4, 1, 1, 1, 1, 1, 1, 1, 4], [0, 1.085318323, 2.124844004, 3.126009127, 4.096923137, 5.060061729, 6.020100862, 6.997008382, 8], False, 3, [1, 1, 1, 1, 1, 1, 1, 1, 1, 1, 1], False), False)
sketch3.addGeometry(Part.BSplineCurve([Vector(5.515926, -3.435026, 0), Vector(5.530044, -3.435229, 0), Vector(5.558004, -3.43563, 0), Vector(5.599525, -3.440001, 0), Vector(5.640324, -3.44596, 0), Vector(5.680326, -3.455225, 0), Vector(5.719654, -3.466535, 0), Vector(5.757983, -3.481071, 0), Vector(5.795756, -3.497476, 0), Vector(5.832374, -3.516831, 0), Vector(5.867802, -3.538111, 0), Vector(5.901267, -3.561838, 0), Vector(5.932774, -3.587459, 0), Vector(5.962817, -3.614627, 0), Vector(5.990235, -3.644356, 0), Vector(6.01601, -3.67581, 0), Vector(6.039685, -3.709331, 0), Vector(6.061466, -3.744601, 0), Vector(6.080936, -3.78121, 0), Vector(6.097718, -3.818903, 0), Vector(6.112025, -3.857287, 0), Vector(6.123844, -3.89632, 0), Vector(6.132887, -3.936162, 0), Vector(6.139302, -3.976648, 0), Vector(6.143553, -4.017952, 0), Vector(6.143971, -4.045743, 0), Vector(6.144182, -4.059776, 0)], [4, 1, 1, 1, 1, 1, 1, 1, 1, 1, 1, 1, 1, 1, 1, 1, 1, 1, 1, 1, 1, 1, 1, 1, 4], [0, 1.029812959, 2.039525905, 3.043952503, 4.036919093, 5.033391511, 6.027870106, 7.026035071, 8.036794627, 9.047957848, 10.039952554, 11.027355318, 12.010276797, 12.992858524, 13.975534638, 14.976019862, 15.985163142, 16.99876328, 17.999396818, 18.993875413, 19.986244033, 20.973271002, 21.972624612, 22.976275263, 24], False, 3, [1, 1, 1, 1, 1, 1, 1, 1, 1, 1, 1, 1, 1, 1, 1, 1, 1, 1, 1, 1, 1, 1, 1, 1, 1, 1, 1], False), False)
sketch3.addGeometry(Part.BSplineCurve([Vector(5.038412, -3.91204, 0), Vector(5.038626, -3.9006, 0), Vector(5.039049, -3.877938, 0), Vector(5.041778, -3.844393, 0), Vector(5.046596, -3.811802, 0), Vector(5.053065, -3.780081, 0), Vector(5.061543, -3.749274, 0), Vector(5.072183, -3.719395, 0), Vector(5.084406, -3.69035, 0), Vector(5.098394, -3.662291, 0), Vector(5.114175, -3.635554, 0), Vector(5.131389, -3.61021, 0), Vector(5.150226, -3.586682, 0), Vector(5.17036, -3.56473, 0), Vector(5.191972, -3.544421, 0), Vector(5.214981, -3.525554, 0), Vector(5.239649, -3.508616, 0), Vector(5.265466, -3.492943, 0), Vector(5.292688, -3.479248, 0), Vector(5.321166, -3.467439, 0), Vector(5.350786, -3.457433, 0), Vector(5.381544, -3.449135, 0), Vector(5.413525, -3.442929, 0), Vector(5.446631, -3.438448, 0), Vector(5.480906, -3.43564, 0), Vector(5.504152, -3.435233, 0), Vector(5.515926, -3.435026, 0)], [4, 1, 1, 1, 1, 1, 1, 1, 1, 1, 1, 1, 1, 1, 1, 1, 1, 1, 1, 1, 1, 1, 1, 1, 4], [0, 1.083699529, 2.146780792, 3.185591126, 4.202843058, 5.211856999, 6.209655863, 7.20532214, 8.195415879, 9.177202942, 10.14436246, 11.095191523, 12.029705806, 12.963818608, 13.902338257, 14.845476191, 15.796042213, 16.761390084, 17.729066592, 18.714222808, 19.721158958, 20.74459932, 21.797962164, 22.884686177, 24], False, 3, [1, 1, 1, 1, 1, 1, 1, 1, 1, 1, 1, 1, 1, 1, 1, 1, 1, 1, 1, 1, 1, 1, 1, 1, 1, 1, 1], False), False)
sketch3.addGeometry(Part.BSplineCurve([Vector(5.671926, -4.52477, 0), Vector(5.656976, -4.524546, 0), Vector(5.627445, -4.524103, 0), Vector(5.583747, -4.520087, 0), Vector(5.541191, -4.514394, 0), Vector(5.499971, -4.505322, 0), Vector(5.459847, -4.494612, 0), Vector(5.421183, -4.480527, 0), Vector(5.383525, -4.464644, 0), Vector(5.347263, -4.446055, 0), Vector(5.312517, -4.425361, 0), Vector(5.27953, -4.402464, 0), Vector(5.24847, -4.377453, 0), Vector(5.21937, -4.350165, 0), Vector(5.19174, -4.321307, 0), Vector(5.166362, -4.289966, 0), Vector(5.142845, -4.256629, 0), Vector(5.121196, -4.221501, 0), Vector(5.101647, -4.185107, 0), Vector(5.084929, -4.147719, 0), Vector(5.070612, -4.109847, 0), Vector(5.058745, -4.071497, 0), Vector(5.049737, -4.032481, 0), Vector(5.043288, -3.992919, 0), Vector(5.03905, -3.952697, 0), Vector(5.038626, -3.925655, 0), Vector(5.038412, -3.91204, 0)], [4, 1, 1, 1, 1, 1, 1, 1, 1, 1, 1, 1, 1, 1, 1, 1, 1, 1, 1, 1, 1, 1, 1, 1, 4], [0, 1.093710758, 2.16039807, 3.20900896, 4.233234191, 5.246749975, 6.245527847, 7.241594159, 8.235879922, 9.224691631, 10.198908654, 11.171861231, 12.139893662, 13.116290872, 14.093089164, 15.087825051, 16.099756899, 17.110766713, 18.108591704, 19.094380672, 20.071961556, 21.043859171, 22.021859724, 23.00397114, 24], False, 3, [1, 1, 1, 1, 1, 1, 1, 1, 1, 1, 1, 1, 1, 1, 1, 1, 1, 1, 1, 1, 1, 1, 1, 1, 1, 1, 1], False), False)
sketch3.addConstraint([
    Sketcher.Constraint("Block", 19),
    Sketcher.Constraint("Block", 20),
    Sketcher.Constraint("Block", 21),
    Sketcher.Constraint("Block", 22),
    Sketcher.Constraint("Block", 26),
    Sketcher.Constraint("Block", 27),
    Sketcher.Constraint("Block", 28),
    Sketcher.Constraint("Block", 29),
    Sketcher.Constraint("Block", 30),
    Sketcher.Constraint("Block", 31),
    Sketcher.Constraint("Block", 32),
    Sketcher.Constraint("Block", 33),
    Sketcher.Constraint("Block", 34),
    Sketcher.Constraint("Block", 35),
    Sketcher.Constraint("Block", 36),
    Sketcher.Constraint("Block", 37),
    Sketcher.Constraint("Block", 38),
    Sketcher.Constraint("Coincident", 18, 2, 19, 2),
    Sketcher.Constraint("Coincident", 22, 1, 23, 1),
    Sketcher.Constraint("Coincident", 23, 2, 24, 1),
    Sketcher.Constraint("Coincident", 24, 2, 25, 1),
    Sketcher.Constraint("Coincident", 25, 2, 26, 2),
    Sketcher.Constraint("Coincident", 29, 1, 18, 1),
    Sketcher.Constraint("Horizontal", 0),
    Sketcher.Constraint("Horizontal", 2),
    Sketcher.Constraint("Horizontal", 4),
    Sketcher.Constraint("Horizontal", 7),
    Sketcher.Constraint("Horizontal", 9),
    Sketcher.Constraint("Horizontal", 11),
    Sketcher.Constraint("Horizontal", 13),
    Sketcher.Constraint("Horizontal", 15),
    Sketcher.Constraint("Horizontal", 17),
    Sketcher.Constraint("Horizontal", 23),
    Sketcher.Constraint("Vertical", 24),
    Sketcher.Constraint("Horizontal", 25),
    Sketcher.Constraint("DistanceY", 0, 2, 1, 2, 1.25),
    Sketcher.Constraint("DistanceY", 6, 2, 2, 2, 1.25),
    Sketcher.Constraint("DistanceY", 7, 2, 8, 2, 1.25),
    Sketcher.Constraint("DistanceX", 0, 2, 0, 1, 0.113181),
    Sketcher.Constraint("DistanceX", 2, 1, 2, 2, 0.67483),
    Sketcher.Constraint("DistanceX", 7, 2, 7, 1, 0.674079),
    Sketcher.Constraint("DistanceX", 9, 1, 9, 2, 0.674579),
    Sketcher.Constraint("DistanceX", 13, 1, 13, 2, 0.555138),
    Sketcher.Constraint("DistanceX", 15, 2, 15, 1, 0.555138),
    Sketcher.Constraint("DistanceY", 0, 2, -1, 1, 4.604898),
    Sketcher.Constraint("DistanceX", 5, 2, 7, 2, 0.688101),
    Sketcher.Constraint("DistanceX", 7, 2, 9, 2, 0.499299),
    Sketcher.Constraint("DistanceX", 11, 2, 13, 2, 0.624499),
    Sketcher.Constraint("DistanceX", 7, 2, 17, 2, 0.6563),
    Sketcher.Constraint("Distance", 1, 1.262229),
    Sketcher.Constraint("Distance", 5, 1.148981),
    Sketcher.Constraint("Distance", 6, 0.11358),
    Sketcher.Constraint("Distance", 14, 0.113318),
    Sketcher.Constraint("Distance", 16, 0.420732),
    Sketcher.Constraint("DistanceX", 4, 2, 4, 1, 0.560397),
    Sketcher.Constraint("DistanceX", 11, 2, 11, 1, 0.560397),
    Sketcher.Constraint("DistanceX", 17, 1, 17, 2, 0.559145),
    Sketcher.Constraint("DistanceX", 23, 2, 23, 1, 0.576923),
    Sketcher.Constraint("DistanceX", -1, 1, 2, 2, 2.331832),
    Sketcher.Constraint("DistanceX", -1, 1, 4, 2, 1.785708),
    Sketcher.Constraint("DistanceX", -1, 1, 11, 2, 2.58699),
    Sketcher.Constraint("DistanceY", 14, 2, -1, 1, 4.076052),
    Sketcher.Constraint("DistanceY", 10, 2, 9, 2, 0.112179),
])
pad3 = doc.addObject("PartDesign::Pad", "Pad002")
body.addObject(pad3)
pad3.Profile = sketch3
pad3.setExpression("Length", "Params.pad3_length")
pad3.Reversed = True

sketch4 = doc.addObject("Sketcher::SketchObject", "Sketch003")
body.addObject(sketch4)
sketch4.AttachmentSupport = (doc.XZ_Plane, [""])
sketch4.MapMode = "FlatFace"
add_polygon(sketch4, [(0.620419, -0.620419), (0.620419, -7.3), (7.3, -7.3), (7.3, -0.620419)])
sketch4.addConstraint([
    Sketcher.Constraint("Vertical", 0),
    Sketcher.Constraint("Horizontal", 1),
    Sketcher.Constraint("Vertical", 2),
    Sketcher.Constraint("Horizontal", 3),
    Sketcher.Constraint("Equal", 3, 0),
    Sketcher.Constraint("DistanceY", 0, 2, -1, 1, 7.3),
    Sketcher.Constraint("DistanceX", -1, 1, 1, 2, 7.3),
    Sketcher.Constraint("DistanceX", 1, 1, 1, 2, 6.679581),
])
pocket1 = doc.addObject("PartDesign::Pocket", "Pocket")
body.addObject(pocket1)
pocket1.Profile = sketch4
pocket1.setExpression("Length", "Params.pocket1_length")

sketch5 = doc.addObject("Sketcher::SketchObject", "Sketch004")
body.addObject(sketch5)
sketch5.AttachmentSupport = (doc.XZ_Plane, [""])
sketch5.MapMode = "FlatFace"
sketch5.AttachmentOffset = App.Placement(Vector(0, 0, -1.19), App.Rotation())
sketch5.addGeometry([
    Part.ArcOfCircle(Part.Circle(Vector(6.369528, -1.557812, 0), Vector(0, 0, 1), 1.00609), math.radians(0), math.radians(180)),
    Part.ArcOfCircle(Part.Circle(Vector(6.369528, -1.557812, 0), Vector(0, 0, 1), 1.00609), math.radians(-90), math.radians(0)),
    Part.ArcOfCircle(Part.Circle(Vector(6.369528, -1.557812, 0), Vector(0, 0, 1), 1.00609), math.radians(-131.234056), math.radians(-90)),
    Part.ArcOfCircle(Part.Circle(Vector(3.95, -3.95, 0), Vector(0, 0, 1), 2.399999), math.radians(42.960494), math.radians(46.388425)),
    Part.ArcOfCircle(Part.Circle(Vector(6.369528, -1.557812, 0), Vector(0, 0, 1), 1.00609), math.radians(-180), math.radians(-139.417026)),
    Part.ArcOfCircle(Part.Circle(Vector(1.458128, -1.557812, 0), Vector(0, 0, 1), 1.021947), math.radians(-90), math.radians(0)),
    Part.ArcOfCircle(Part.Circle(Vector(1.458128, -1.557812, 0), Vector(0, 0, 1), 1.021947), math.radians(0), math.radians(270)),
    Part.ArcOfCircle(Part.Circle(Vector(6.369528, -6.365232, 0), Vector(0, 0, 1), 1.01607), math.radians(180), math.radians(360)),
    Part.ArcOfCircle(Part.Circle(Vector(6.369528, -6.365232, 0), Vector(0, 0, 1), 1.01607), math.radians(90), math.radians(180)),
    Part.ArcOfCircle(Part.Circle(Vector(6.369528, -6.365232, 0), Vector(0, 0, 1), 1.01607), math.radians(0), math.radians(90)),
    Part.ArcOfCircle(Part.Circle(Vector(1.458128, -6.365232, 0), Vector(0, 0, 1), 1.041115), math.radians(90), math.radians(360)),
    Part.ArcOfCircle(Part.Circle(Vector(1.458128, -6.365232, 0), Vector(0, 0, 1), 1.041115), math.radians(0), math.radians(90)),
], False)
sketch5.addConstraint([
    Sketcher.Constraint("Tangent", 0, 1, 1, 2),
    Sketcher.Constraint("Tangent", 1, 1, 2, 2),
    Sketcher.Constraint("Coincident", 2, 1, 3, 1),
    Sketcher.Constraint("Coincident", 3, 2, 4, 2),
    Sketcher.Constraint("Tangent", 4, 1, 0, 2),
    Sketcher.Constraint("Tangent", 5, 1, 6, 2),
    Sketcher.Constraint("Coincident", 6, 1, 5, 2),
    Sketcher.Constraint("Tangent", 7, 1, 8, 2),
    Sketcher.Constraint("Tangent", 8, 1, 9, 2),
    Sketcher.Constraint("Tangent", 9, 1, 7, 2),
    Sketcher.Constraint("Tangent", 10, 1, 11, 2),
    Sketcher.Constraint("Coincident", 11, 1, 10, 2),
    Sketcher.Constraint("Coincident", 2, 3, 0, 3),
    Sketcher.Constraint("Equal", 2, 4),
    Sketcher.Constraint("Horizontal", 4, 3, 5, 3),
    Sketcher.Constraint("Horizontal", 9, 3, 10, 3),
    Sketcher.Constraint("Horizontal", 6, 3, 0, 1),
    Sketcher.Constraint("Horizontal", 0, 1, 4, 1),
    Sketcher.Constraint("Horizontal", 4, 1, 6, 1),
    Sketcher.Constraint("Horizontal", 11, 3, 7, 1),
    Sketcher.Constraint("Horizontal", 7, 1, 9, 1),
    Sketcher.Constraint("Horizontal", 9, 1, 11, 1),
    Sketcher.Constraint("Vertical", 4, 3, 7, 3),
    Sketcher.Constraint("Vertical", 6, 3, 10, 3),
    Sketcher.Constraint("Vertical", 9, 3, 1, 1),
    Sketcher.Constraint("Vertical", 11, 3, 5, 1),
    Sketcher.Constraint("Vertical", 1, 1, 8, 1),
    Sketcher.Constraint("Vertical", 5, 1, 10, 1),
    Sketcher.Constraint("Radius", 3, 2.399999),
    Sketcher.Constraint("DistanceX", -1, 1, 3, 3, 3.95),
    Sketcher.Constraint("DistanceY", 3, 3, -1, 1, 3.95),
    Sketcher.Constraint("Radius", 0, 1.00609),
    Sketcher.Constraint("Radius", 7, 1.01607),
    Sketcher.Constraint("Radius", 5, 1.021947),
    Sketcher.Constraint("Radius", 10, 1.041115),
    Sketcher.Constraint("DistanceX", 4, 1, 3, 2, 0.242),
    Sketcher.Constraint("DistanceY", 1, 1, -1, 1, 2.563901),
    Sketcher.Constraint("DistanceX", 5, 3, 0, 3, 4.9114),
    Sketcher.Constraint("DistanceY", 7, 3, 0, 3, 4.807421),
])
sketch5.setExpression("Constraints[28]", "Params.sketch5_radius")
pad4 = doc.addObject("PartDesign::Pad", "Pad003")
body.addObject(pad4)
pad4.Profile = sketch5
pad4.setExpression("Length", "Params.pad4_length")
pad4.Reversed = True
body2 = doc.addObject("PartDesign::Body", "Body001")
doc.recompute()

body2.BaseFeature = body
doc.recompute()

mirroring = doc.addObject("Part::Mirroring", "Mirroring")
mirroring.Source = body
mirroring.Base = Vector(7.9, 3.2, 0)
mirroring.Normal = Vector(-1, 0, 0)
body3 = doc.addObject("PartDesign::Body", "Body002")
body3.BaseFeature = mirroring
boolean = doc.addObject("PartDesign::Boolean", "Boolean")
body2.addObject(boolean)
boolean.Type = "Fuse"
boolean.addObjects([body3])
doc.recompute()
mirroring.Visibility = False

doc.recompute()
